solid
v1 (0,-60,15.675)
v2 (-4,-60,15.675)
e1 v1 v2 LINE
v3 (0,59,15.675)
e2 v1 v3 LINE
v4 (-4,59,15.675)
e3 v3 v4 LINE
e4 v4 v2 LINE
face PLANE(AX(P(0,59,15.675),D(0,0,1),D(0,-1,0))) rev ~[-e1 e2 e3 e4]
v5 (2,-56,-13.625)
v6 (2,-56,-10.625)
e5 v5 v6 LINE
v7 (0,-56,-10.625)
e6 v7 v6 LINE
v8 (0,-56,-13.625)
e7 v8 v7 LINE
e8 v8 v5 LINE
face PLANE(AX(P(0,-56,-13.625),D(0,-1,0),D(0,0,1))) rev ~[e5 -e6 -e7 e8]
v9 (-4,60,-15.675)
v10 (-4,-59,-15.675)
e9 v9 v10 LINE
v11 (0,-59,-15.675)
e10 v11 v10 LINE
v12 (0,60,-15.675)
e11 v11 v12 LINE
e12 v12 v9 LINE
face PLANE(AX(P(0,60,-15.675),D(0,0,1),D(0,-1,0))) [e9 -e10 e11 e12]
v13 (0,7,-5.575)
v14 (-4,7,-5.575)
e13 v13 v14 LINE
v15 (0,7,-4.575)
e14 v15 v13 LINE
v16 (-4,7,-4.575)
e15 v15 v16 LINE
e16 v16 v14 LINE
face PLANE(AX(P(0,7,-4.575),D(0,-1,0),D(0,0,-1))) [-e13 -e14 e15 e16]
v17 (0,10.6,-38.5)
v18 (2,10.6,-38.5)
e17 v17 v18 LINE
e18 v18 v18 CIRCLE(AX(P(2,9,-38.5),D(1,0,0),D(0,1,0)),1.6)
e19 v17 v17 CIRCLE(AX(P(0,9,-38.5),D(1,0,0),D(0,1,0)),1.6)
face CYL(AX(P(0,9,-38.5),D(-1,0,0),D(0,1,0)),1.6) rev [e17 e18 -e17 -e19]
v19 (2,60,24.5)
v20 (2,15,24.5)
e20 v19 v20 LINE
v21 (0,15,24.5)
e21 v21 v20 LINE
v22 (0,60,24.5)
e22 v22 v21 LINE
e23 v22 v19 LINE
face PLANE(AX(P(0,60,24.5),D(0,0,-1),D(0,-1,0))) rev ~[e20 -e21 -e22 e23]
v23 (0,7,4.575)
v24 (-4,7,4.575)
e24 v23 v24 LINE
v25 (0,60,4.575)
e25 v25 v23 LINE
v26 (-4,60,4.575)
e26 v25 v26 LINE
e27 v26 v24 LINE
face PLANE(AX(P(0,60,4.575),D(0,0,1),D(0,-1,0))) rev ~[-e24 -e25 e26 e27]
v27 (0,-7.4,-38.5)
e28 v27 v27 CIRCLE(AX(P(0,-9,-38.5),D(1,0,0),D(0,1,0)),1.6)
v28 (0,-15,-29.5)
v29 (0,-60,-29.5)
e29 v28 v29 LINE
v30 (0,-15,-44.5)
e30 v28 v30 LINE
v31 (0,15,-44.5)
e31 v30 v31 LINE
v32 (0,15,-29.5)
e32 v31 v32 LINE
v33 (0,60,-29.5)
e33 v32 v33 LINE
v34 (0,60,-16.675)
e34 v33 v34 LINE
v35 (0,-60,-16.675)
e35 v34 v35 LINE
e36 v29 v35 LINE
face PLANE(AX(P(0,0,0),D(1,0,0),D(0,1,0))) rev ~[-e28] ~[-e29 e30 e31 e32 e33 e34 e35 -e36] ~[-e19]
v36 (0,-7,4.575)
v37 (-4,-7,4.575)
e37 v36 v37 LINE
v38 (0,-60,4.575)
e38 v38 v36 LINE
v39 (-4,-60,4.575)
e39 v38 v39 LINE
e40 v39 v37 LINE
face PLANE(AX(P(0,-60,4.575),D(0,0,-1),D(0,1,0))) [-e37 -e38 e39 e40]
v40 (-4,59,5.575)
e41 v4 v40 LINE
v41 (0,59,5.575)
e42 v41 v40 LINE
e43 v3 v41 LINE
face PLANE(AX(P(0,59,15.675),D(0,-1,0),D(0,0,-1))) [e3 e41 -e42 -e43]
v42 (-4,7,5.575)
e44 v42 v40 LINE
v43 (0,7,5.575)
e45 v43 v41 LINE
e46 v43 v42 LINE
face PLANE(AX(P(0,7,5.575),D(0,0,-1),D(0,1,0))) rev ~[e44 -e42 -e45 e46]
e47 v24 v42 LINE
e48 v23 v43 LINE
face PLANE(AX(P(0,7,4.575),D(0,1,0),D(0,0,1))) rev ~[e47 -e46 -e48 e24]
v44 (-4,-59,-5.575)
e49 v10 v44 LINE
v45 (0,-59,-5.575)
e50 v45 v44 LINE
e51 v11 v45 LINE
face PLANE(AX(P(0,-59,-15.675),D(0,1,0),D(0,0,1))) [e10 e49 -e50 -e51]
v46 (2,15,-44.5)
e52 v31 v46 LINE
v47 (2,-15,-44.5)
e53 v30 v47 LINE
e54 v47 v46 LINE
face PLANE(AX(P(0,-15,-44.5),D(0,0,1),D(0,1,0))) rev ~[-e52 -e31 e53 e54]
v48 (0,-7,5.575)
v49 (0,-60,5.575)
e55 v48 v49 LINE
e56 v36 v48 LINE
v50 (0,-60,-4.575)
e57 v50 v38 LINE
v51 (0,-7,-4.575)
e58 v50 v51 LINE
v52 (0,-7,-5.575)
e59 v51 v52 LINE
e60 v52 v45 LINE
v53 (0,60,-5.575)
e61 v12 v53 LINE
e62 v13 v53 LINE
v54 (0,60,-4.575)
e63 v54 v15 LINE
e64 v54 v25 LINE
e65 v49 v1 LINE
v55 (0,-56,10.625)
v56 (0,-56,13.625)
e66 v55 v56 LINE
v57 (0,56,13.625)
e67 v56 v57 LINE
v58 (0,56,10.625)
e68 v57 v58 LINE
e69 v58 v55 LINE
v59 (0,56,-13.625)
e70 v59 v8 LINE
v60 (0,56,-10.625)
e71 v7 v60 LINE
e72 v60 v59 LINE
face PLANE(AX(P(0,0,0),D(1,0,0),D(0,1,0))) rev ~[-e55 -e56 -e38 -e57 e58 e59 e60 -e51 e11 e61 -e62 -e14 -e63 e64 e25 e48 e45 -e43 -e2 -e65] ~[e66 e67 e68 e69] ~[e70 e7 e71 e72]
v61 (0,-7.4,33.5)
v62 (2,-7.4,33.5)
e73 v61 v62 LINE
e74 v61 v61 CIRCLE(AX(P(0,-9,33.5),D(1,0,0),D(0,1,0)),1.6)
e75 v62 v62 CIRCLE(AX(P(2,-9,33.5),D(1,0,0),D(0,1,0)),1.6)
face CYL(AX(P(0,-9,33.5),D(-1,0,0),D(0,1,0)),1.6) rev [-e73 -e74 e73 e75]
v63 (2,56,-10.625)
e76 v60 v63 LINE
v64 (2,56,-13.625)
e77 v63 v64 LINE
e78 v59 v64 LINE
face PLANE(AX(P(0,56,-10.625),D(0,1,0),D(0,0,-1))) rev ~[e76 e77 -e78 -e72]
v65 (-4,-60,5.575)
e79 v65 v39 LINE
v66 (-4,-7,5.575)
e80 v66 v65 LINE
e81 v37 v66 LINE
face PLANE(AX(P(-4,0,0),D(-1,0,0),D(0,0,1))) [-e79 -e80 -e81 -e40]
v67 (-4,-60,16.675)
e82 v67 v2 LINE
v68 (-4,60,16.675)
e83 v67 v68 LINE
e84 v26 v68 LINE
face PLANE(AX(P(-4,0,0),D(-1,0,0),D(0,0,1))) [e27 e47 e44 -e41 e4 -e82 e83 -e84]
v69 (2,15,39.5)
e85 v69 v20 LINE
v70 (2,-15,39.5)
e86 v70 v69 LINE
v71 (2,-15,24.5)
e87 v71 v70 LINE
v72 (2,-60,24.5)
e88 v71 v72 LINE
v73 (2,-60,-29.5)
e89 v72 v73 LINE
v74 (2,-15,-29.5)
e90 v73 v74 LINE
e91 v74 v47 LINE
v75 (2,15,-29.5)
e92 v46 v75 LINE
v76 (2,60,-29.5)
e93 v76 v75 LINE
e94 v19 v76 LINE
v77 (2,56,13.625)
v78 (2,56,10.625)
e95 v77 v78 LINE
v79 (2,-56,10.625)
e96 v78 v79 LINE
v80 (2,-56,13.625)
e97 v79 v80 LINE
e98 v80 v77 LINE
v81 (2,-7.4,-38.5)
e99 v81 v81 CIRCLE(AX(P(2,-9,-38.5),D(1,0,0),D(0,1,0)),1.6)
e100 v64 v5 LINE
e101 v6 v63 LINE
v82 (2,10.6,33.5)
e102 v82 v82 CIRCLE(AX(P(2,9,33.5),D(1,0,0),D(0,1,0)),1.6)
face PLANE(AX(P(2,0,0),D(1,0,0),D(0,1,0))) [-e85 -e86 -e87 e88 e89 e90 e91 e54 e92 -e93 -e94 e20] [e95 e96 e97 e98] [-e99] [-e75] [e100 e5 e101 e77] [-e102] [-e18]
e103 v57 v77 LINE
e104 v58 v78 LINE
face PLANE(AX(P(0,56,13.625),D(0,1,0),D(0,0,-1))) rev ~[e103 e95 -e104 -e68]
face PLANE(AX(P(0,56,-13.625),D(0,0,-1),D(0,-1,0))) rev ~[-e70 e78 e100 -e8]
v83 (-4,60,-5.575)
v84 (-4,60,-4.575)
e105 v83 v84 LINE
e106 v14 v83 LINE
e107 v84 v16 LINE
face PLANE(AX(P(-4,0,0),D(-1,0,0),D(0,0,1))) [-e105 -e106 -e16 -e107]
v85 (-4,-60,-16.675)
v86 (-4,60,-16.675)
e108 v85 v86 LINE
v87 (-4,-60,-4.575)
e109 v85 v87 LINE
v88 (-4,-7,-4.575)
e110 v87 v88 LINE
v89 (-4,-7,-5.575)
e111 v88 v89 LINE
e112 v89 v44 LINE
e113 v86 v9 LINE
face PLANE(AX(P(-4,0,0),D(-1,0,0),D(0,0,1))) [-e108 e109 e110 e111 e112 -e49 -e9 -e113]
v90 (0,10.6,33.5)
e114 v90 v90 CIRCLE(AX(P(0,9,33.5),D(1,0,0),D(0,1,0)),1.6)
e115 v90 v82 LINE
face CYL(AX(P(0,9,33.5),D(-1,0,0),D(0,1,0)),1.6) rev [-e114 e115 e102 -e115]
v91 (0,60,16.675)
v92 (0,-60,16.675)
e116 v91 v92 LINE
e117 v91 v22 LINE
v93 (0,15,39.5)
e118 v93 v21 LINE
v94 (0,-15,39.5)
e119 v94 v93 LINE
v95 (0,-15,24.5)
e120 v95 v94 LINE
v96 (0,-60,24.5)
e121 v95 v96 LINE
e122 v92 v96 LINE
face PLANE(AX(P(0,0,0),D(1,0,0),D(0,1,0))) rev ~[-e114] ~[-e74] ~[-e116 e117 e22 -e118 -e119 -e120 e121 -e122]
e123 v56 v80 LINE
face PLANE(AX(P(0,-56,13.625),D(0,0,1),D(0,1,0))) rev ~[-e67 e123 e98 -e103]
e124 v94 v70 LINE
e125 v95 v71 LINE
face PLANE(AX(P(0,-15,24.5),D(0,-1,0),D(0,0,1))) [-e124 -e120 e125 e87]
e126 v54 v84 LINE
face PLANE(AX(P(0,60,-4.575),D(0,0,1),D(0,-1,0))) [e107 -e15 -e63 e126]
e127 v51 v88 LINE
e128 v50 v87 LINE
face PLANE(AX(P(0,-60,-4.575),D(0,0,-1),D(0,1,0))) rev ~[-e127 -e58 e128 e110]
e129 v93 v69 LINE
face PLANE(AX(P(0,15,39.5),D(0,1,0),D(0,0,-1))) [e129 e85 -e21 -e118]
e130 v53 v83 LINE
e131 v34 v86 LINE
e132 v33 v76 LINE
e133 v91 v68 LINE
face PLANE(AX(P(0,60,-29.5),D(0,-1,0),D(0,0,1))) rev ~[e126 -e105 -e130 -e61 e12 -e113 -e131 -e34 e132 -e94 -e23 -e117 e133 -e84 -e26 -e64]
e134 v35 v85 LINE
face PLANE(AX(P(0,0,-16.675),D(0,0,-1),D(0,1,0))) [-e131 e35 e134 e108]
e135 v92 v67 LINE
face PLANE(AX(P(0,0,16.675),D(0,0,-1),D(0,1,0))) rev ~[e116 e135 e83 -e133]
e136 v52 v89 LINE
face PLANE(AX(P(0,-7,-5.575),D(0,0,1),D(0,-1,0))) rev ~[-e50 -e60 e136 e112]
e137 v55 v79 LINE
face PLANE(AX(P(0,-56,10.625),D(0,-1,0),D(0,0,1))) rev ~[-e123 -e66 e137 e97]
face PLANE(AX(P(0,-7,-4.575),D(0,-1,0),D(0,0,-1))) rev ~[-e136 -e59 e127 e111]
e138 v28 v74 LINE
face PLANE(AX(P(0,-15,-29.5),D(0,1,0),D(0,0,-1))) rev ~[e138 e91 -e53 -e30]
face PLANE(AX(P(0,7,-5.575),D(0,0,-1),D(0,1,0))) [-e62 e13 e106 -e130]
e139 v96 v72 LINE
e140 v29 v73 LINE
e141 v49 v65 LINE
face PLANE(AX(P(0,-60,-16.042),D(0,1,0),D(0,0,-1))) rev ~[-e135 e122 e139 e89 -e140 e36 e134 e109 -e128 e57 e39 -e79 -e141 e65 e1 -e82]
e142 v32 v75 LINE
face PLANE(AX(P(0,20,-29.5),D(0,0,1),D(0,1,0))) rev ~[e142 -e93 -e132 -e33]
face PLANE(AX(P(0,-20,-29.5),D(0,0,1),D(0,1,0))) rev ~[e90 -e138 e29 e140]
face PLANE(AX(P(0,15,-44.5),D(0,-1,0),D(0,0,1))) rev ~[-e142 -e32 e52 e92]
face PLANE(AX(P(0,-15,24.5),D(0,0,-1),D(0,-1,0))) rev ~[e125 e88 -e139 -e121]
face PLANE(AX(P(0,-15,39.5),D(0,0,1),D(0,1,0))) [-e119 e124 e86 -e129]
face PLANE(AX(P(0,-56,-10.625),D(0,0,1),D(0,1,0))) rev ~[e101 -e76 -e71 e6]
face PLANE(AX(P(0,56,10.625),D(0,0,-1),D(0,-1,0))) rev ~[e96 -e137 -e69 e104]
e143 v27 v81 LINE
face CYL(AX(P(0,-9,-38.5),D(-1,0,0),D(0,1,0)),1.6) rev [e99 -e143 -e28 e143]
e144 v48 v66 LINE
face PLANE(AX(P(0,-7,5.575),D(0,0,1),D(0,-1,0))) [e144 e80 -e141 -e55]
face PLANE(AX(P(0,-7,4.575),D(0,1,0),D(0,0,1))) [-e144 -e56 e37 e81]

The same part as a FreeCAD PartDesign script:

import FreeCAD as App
import Part
import Sketcher

V = App.Vector

doc = App.newDocument("Part")
body = doc.addObject("PartDesign::Body", "Body")

sketch1 = body.newObject("Sketcher::SketchObject", "Sketch")
sketch1.AttachmentSupport = (doc.getObject("YZ_Plane"), [""])
sketch1.MapMode = "FlatFace"
sketch1.addGeometry(Part.LineSegment(V(60, -29.5, 0), V(60, 24.5, 0)), False)
sketch1.addGeometry(Part.LineSegment(V(60, 24.5, 0), V(15, 24.5, 0)), False)
sketch1.addGeometry(Part.LineSegment(V(15, 24.5, 0), V(15, 39.5, 0)), False)
sketch1.addGeometry(Part.LineSegment(V(15, 39.5, 0), V(-15, 39.5, 0)), False)
sketch1.addGeometry(Part.LineSegment(V(-15, 39.5, 0), V(-15, 24.5, 0)), False)
sketch1.addGeometry(Part.LineSegment(V(-15, 24.5, 0), V(-60, 24.5, 0)), False)
sketch1.addGeometry(Part.LineSegment(V(-60, 24.5, 0), V(-60, -29.5, 0)), False)
sketch1.addGeometry(Part.LineSegment(V(-60, -29.5, 0), V(-15, -29.5, 0)), False)
sketch1.addGeometry(Part.LineSegment(V(-15, -29.5, 0), V(-15, -44.5, 0)), False)
sketch1.addGeometry(Part.LineSegment(V(-15, -44.5, 0), V(15, -44.5, 0)), False)
sketch1.addGeometry(Part.LineSegment(V(15, -44.5, 0), V(15, -29.5, 0)), False)
sketch1.addGeometry(Part.LineSegment(V(15, -29.5, 0), V(60, -29.5, 0)), False)
sketch1.addGeometry(Part.Circle(V(9, -38.5, 0), V(0, 0, 1), 1.6), False)
sketch1.addGeometry(Part.Circle(V(-9, -38.5, 0), V(0, 0, 1), 1.6), False)
sketch1.addGeometry(Part.LineSegment(V(-56, -10.625, 0), V(56, -10.625, 0)), False)
sketch1.addGeometry(Part.LineSegment(V(56, -10.625, 0), V(56, -13.625, 0)), False)
sketch1.addGeometry(Part.LineSegment(V(56, -13.625, 0), V(-56, -13.625, 0)), False)
sketch1.addGeometry(Part.LineSegment(V(-56, -13.625, 0), V(-56, -10.625, 0)), False)
sketch1.addGeometry(Part.LineSegment(V(-56, 13.625, 0), V(56, 13.625, 0)), False)
sketch1.addGeometry(Part.LineSegment(V(56, 13.625, 0), V(56, 10.625, 0)), False)
sketch1.addGeometry(Part.LineSegment(V(56, 10.625, 0), V(-56, 10.625, 0)), False)
sketch1.addGeometry(Part.LineSegment(V(-56, 10.625, 0), V(-56, 13.625, 0)), False)
sketch1.addGeometry(Part.Circle(V(9, 33.5, 0), V(0, 0, 1), 1.6), False)
sketch1.addGeometry(Part.Circle(V(-9, 33.5, 0), V(0, 0, 1), 1.6), False)
sketch1.addConstraint(Sketcher.Constraint("Coincident", 0, 2, 1, 1))
sketch1.addConstraint(Sketcher.Constraint("Coincident", 1, 2, 2, 1))
sketch1.addConstraint(Sketcher.Constraint("Coincident", 2, 2, 3, 1))
sketch1.addConstraint(Sketcher.Constraint("Coincident", 3, 2, 4, 1))
sketch1.addConstraint(Sketcher.Constraint("Coincident", 4, 2, 5, 1))
sketch1.addConstraint(Sketcher.Constraint("Coincident", 5, 2, 6, 1))
sketch1.addConstraint(Sketcher.Constraint("Coincident", 6, 2, 7, 1))
sketch1.addConstraint(Sketcher.Constraint("Coincident", 7, 2, 8, 1))
sketch1.addConstraint(Sketcher.Constraint("Coincident", 8, 2, 9, 1))
sketch1.addConstraint(Sketcher.Constraint("Coincident", 9, 2, 10, 1))
sketch1.addConstraint(Sketcher.Constraint("Coincident", 10, 2, 11, 1))
sketch1.addConstraint(Sketcher.Constraint("Coincident", 11, 2, 0, 1))
sketch1.addConstraint(Sketcher.Constraint("Coincident", 14, 2, 15, 1))
sketch1.addConstraint(Sketcher.Constraint("Coincident", 15, 2, 16, 1))
sketch1.addConstraint(Sketcher.Constraint("Coincident", 16, 2, 17, 1))
sketch1.addConstraint(Sketcher.Constraint("Coincident", 17, 2, 14, 1))
sketch1.addConstraint(Sketcher.Constraint("Coincident", 18, 2, 19, 1))
sketch1.addConstraint(Sketcher.Constraint("Coincident", 19, 2, 20, 1))
sketch1.addConstraint(Sketcher.Constraint("Coincident", 20, 2, 21, 1))
sketch1.addConstraint(Sketcher.Constraint("Coincident", 21, 2, 18, 1))
sketch1.addConstraint(Sketcher.Constraint("Vertical", 0))
sketch1.addConstraint(Sketcher.Constraint("Horizontal", 1))
sketch1.addConstraint(Sketcher.Constraint("Vertical", 2))
sketch1.addConstraint(Sketcher.Constraint("Horizontal", 3))
sketch1.addConstraint(Sketcher.Constraint("Vertical", 4))
sketch1.addConstraint(Sketcher.Constraint("Horizontal", 5))
sketch1.addConstraint(Sketcher.Constraint("Vertical", 6))
sketch1.addConstraint(Sketcher.Constraint("Horizontal", 7))
sketch1.addConstraint(Sketcher.Constraint("Vertical", 8))
sketch1.addConstraint(Sketcher.Constraint("Horizontal", 9))
sketch1.addConstraint(Sketcher.Constraint("Vertical", 10))
sketch1.addConstraint(Sketcher.Constraint("Horizontal", 11))
sketch1.addConstraint(Sketcher.Constraint("Horizontal", 14))
sketch1.addConstraint(Sketcher.Constraint("Vertical", 15))
sketch1.addConstraint(Sketcher.Constraint("Horizontal", 16))
sketch1.addConstraint(Sketcher.Constraint("Vertical", 17))
sketch1.addConstraint(Sketcher.Constraint("Horizontal", 18))
sketch1.addConstraint(Sketcher.Constraint("Vertical", 19))
sketch1.addConstraint(Sketcher.Constraint("Horizontal", 20))
sketch1.addConstraint(Sketcher.Constraint("Vertical", 21))
sketch1.addConstraint(Sketcher.Constraint("Equal", 12, 13))
sketch1.addConstraint(Sketcher.Constraint("Equal", 13, 22))
sketch1.addConstraint(Sketcher.Constraint("Equal", 22, 23))
sketch1.addConstraint(Sketcher.Constraint("Symmetric", 16, 2, 18, 2, -1, 1))
sketch1.addConstraint(Sketcher.Constraint("Symmetric", 14, 2, 20, 2, -1, 1))
sketch1.addConstraint(Sketcher.Constraint("Symmetric", 12, 3, 13, 3, -2))
sketch1.addConstraint(Sketcher.Constraint("Symmetric", 22, 3, 23, 3, -2))
sketch1.addConstraint(Sketcher.Constraint("Symmetric", 1, 2, 4, 2, -2))
sketch1.addConstraint(Sketcher.Constraint("Symmetric", 7, 2, 10, 2, -2))
sketch1.addConstraint(Sketcher.Constraint("Vertical", 12, 3, 22, 3))
sketch1.addConstraint(Sketcher.Constraint("Vertical", 4, 2, 7, 2))
sketch1.addConstraint(Sketcher.Constraint("Vertical", 15, 2, 18, 2))
sketch1.addConstraint(Sketcher.Constraint("Equal", 1, 5))
sketch1.addConstraint(Sketcher.Constraint("Equal", 4, 8))
sketch1.addConstraint(Sketcher.Constraint("Diameter", 12, 3.2))
sketch1.addConstraint(Sketcher.Constraint("DistanceX", 3, 2, 3, 1, 30.0))
sketch1.addConstraint(Sketcher.Constraint("DistanceY", 0, 1, 0, 2, 54.0))
sketch1.addConstraint(Sketcher.Constraint("DistanceY", 2, 1, 2, 2, 15.0))
sketch1.addConstraint(Sketcher.Constraint("DistanceY", 15, 2, 15, 1, 3.0))
sketch1.addConstraint(Sketcher.Constraint("DistanceX", -1, 1, 12, 3, 9.0))
sketch1.addConstraint(Sketcher.Constraint("DistanceY", 12, 3, 22, 3, 72.0))
sketch1.addConstraint(Sketcher.Constraint("DistanceY", 0, 2, 22, 3, 9.0))
sketch1.addConstraint(Sketcher.Constraint("DistanceX", 14, 2, 11, 2, 4.0))
sketch1.addConstraint(Sketcher.Constraint("DistanceY", 6, 2, -1, 1, 29.5))
sketch1.addConstraint(Sketcher.Constraint("DistanceX", 1, 2, 1, 1, 45.0))
sketch1.addConstraint(Sketcher.Constraint("DistanceY", 14, 2, 18, 2, 24.25))
pad1 = body.newObject("PartDesign::Pad", "Pad")
pad1.Profile = sketch1
pad1.Length = 2

sketch2 = body.newObject("Sketcher::SketchObject", "Sketch001")
sketch2.AttachmentSupport = (doc.getObject("YZ_Plane"), [""])
sketch2.MapMode = "FlatFace"
sketch2.addGeometry(Part.LineSegment(V(60, 4.575, 0), V(7, 4.575, 0)), False)
sketch2.addGeometry(Part.LineSegment(V(7, 4.575, 0), V(7, 5.575, 0)), False)
sketch2.addGeometry(Part.LineSegment(V(7, 5.575, 0), V(59, 5.575, 0)), False)
sketch2.addGeometry(Part.LineSegment(V(59, 5.575, 0), V(59, 15.675, 0)), False)
sketch2.addGeometry(Part.LineSegment(V(59, 15.675, 0), V(-60, 15.675, 0)), False)
sketch2.addGeometry(Part.LineSegment(V(-60, 15.675, 0), V(-60, 16.675, 0)), False)
sketch2.addGeometry(Part.LineSegment(V(-60, 16.675, 0), V(60, 16.675, 0)), False)
sketch2.addGeometry(Part.LineSegment(V(60, 16.675, 0), V(60, 4.575, 0)), False)
sketch2.addGeometry(Part.LineSegment(V(60, -4.575, 0), V(60, -5.575, 0)), False)
sketch2.addGeometry(Part.LineSegment(V(60, -5.575, 0), V(7, -5.575, 0)), False)
sketch2.addGeometry(Part.LineSegment(V(7, -5.575, 0), V(7, -4.575, 0)), False)
sketch2.addGeometry(Part.LineSegment(V(7, -4.575, 0), V(60, -4.575, 0)), False)
sketch2.addGeometry(Part.LineSegment(V(60, -15.675, 0), V(60, -16.675, 0)), False)
sketch2.addGeometry(Part.LineSegment(V(60, -16.675, 0), V(-60, -16.675, 0)), False)
sketch2.addGeometry(Part.LineSegment(V(-60, -16.675, 0), V(-60, -4.575, 0)), False)
sketch2.addGeometry(Part.LineSegment(V(-60, -4.575, 0), V(-7, -4.575, 0)), False)
sketch2.addGeometry(Part.LineSegment(V(-7, -4.575, 0), V(-7, -5.575, 0)), False)
sketch2.addGeometry(Part.LineSegment(V(-7, -5.575, 0), V(-59, -5.575, 0)), False)
sketch2.addGeometry(Part.LineSegment(V(-59, -5.575, 0), V(-59, -15.675, 0)), False)
sketch2.addGeometry(Part.LineSegment(V(-59, -15.675, 0), V(60, -15.675, 0)), False)
sketch2.addGeometry(Part.LineSegment(V(-60, 4.575, 0), V(-60, 5.575, 0)), False)
sketch2.addGeometry(Part.LineSegment(V(-60, 5.575, 0), V(-7, 5.575, 0)), False)
sketch2.addGeometry(Part.LineSegment(V(-7, 5.575, 0), V(-7, 4.575, 0)), False)
sketch2.addGeometry(Part.LineSegment(V(-7, 4.575, 0), V(-60, 4.575, 0)), False)
sketch2.addConstraint(Sketcher.Constraint("Coincident", 0, 2, 1, 1))
sketch2.addConstraint(Sketcher.Constraint("Coincident", 1, 2, 2, 1))
sketch2.addConstraint(Sketcher.Constraint("Coincident", 2, 2, 3, 1))
sketch2.addConstraint(Sketcher.Constraint("Coincident", 3, 2, 4, 1))
sketch2.addConstraint(Sketcher.Constraint("Coincident", 4, 2, 5, 1))
sketch2.addConstraint(Sketcher.Constraint("Coincident", 5, 2, 6, 1))
sketch2.addConstraint(Sketcher.Constraint("Coincident", 6, 2, 7, 1))
sketch2.addConstraint(Sketcher.Constraint("Coincident", 7, 2, 0, 1))
sketch2.addConstraint(Sketcher.Constraint("Coincident", 8, 2, 9, 1))
sketch2.addConstraint(Sketcher.Constraint("Coincident", 9, 2, 10, 1))
sketch2.addConstraint(Sketcher.Constraint("Coincident", 10, 2, 11, 1))
sketch2.addConstraint(Sketcher.Constraint("Coincident", 11, 2, 8, 1))
sketch2.addConstraint(Sketcher.Constraint("Coincident", 12, 2, 13, 1))
sketch2.addConstraint(Sketcher.Constraint("Coincident", 13, 2, 14, 1))
sketch2.addConstraint(Sketcher.Constraint("Coincident", 14, 2, 15, 1))
sketch2.addConstraint(Sketcher.Constraint("Coincident", 15, 2, 16, 1))
sketch2.addConstraint(Sketcher.Constraint("Coincident", 16, 2, 17, 1))
sketch2.addConstraint(Sketcher.Constraint("Coincident", 17, 2, 18, 1))
sketch2.addConstraint(Sketcher.Constraint("Coincident", 18, 2, 19, 1))
sketch2.addConstraint(Sketcher.Constraint("Coincident", 19, 2, 12, 1))
sketch2.addConstraint(Sketcher.Constraint("Coincident", 20, 2, 21, 1))
sketch2.addConstraint(Sketcher.Constraint("Coincident", 21, 2, 22, 1))
sketch2.addConstraint(Sketcher.Constraint("Coincident", 22, 2, 23, 1))
sketch2.addConstraint(Sketcher.Constraint("Coincident", 23, 2, 20, 1))
sketch2.addConstraint(Sketcher.Constraint("Horizontal", 0))
sketch2.addConstraint(Sketcher.Constraint("Vertical", 1))
sketch2.addConstraint(Sketcher.Constraint("Horizontal", 2))
sketch2.addConstraint(Sketcher.Constraint("Vertical", 3))
sketch2.addConstraint(Sketcher.Constraint("Horizontal", 4))
sketch2.addConstraint(Sketcher.Constraint("Vertical", 5))
sketch2.addConstraint(Sketcher.Constraint("Horizontal", 6))
sketch2.addConstraint(Sketcher.Constraint("Vertical", 7))
sketch2.addConstraint(Sketcher.Constraint("Vertical", 8))
sketch2.addConstraint(Sketcher.Constraint("Horizontal", 9))
sketch2.addConstraint(Sketcher.Constraint("Vertical", 10))
sketch2.addConstraint(Sketcher.Constraint("Horizontal", 11))
sketch2.addConstraint(Sketcher.Constraint("Vertical", 12))
sketch2.addConstraint(Sketcher.Constraint("Horizontal", 13))
sketch2.addConstraint(Sketcher.Constraint("Vertical", 14))
sketch2.addConstraint(Sketcher.Constraint("Horizontal", 15))
sketch2.addConstraint(Sketcher.Constraint("Vertical", 16))
sketch2.addConstraint(Sketcher.Constraint("Horizontal", 17))
sketch2.addConstraint(Sketcher.Constraint("Vertical", 18))
sketch2.addConstraint(Sketcher.Constraint("Horizontal", 19))
sketch2.addConstraint(Sketcher.Constraint("Vertical", 20))
sketch2.addConstraint(Sketcher.Constraint("Horizontal", 21))
sketch2.addConstraint(Sketcher.Constraint("Vertical", 22))
sketch2.addConstraint(Sketcher.Constraint("Horizontal", 23))
sketch2.addConstraint(Sketcher.Constraint("Symmetric", 5, 2, 12, 2, -1, 1))
sketch2.addConstraint(Sketcher.Constraint("Symmetric", 7, 2, 14, 2, -1, 1))
sketch2.addConstraint(Sketcher.Constraint("Symmetric", 1, 2, 16, 2, -1, 1))
sketch2.addConstraint(Sketcher.Constraint("Symmetric", 3, 2, 18, 2, -1, 1))
sketch2.addConstraint(Sketcher.Constraint("Symmetric", 8, 2, 20, 2, -1, 1))
sketch2.addConstraint(Sketcher.Constraint("Symmetric", 10, 2, 22, 2, -1, 1))
sketch2.addConstraint(Sketcher.Constraint("Symmetric", 11, 2, 14, 2, -2))
sketch2.addConstraint(Sketcher.Constraint("Symmetric", 9, 2, 16, 2, -2))
sketch2.addConstraint(Sketcher.Constraint("Vertical", 11, 2, 12, 2))
sketch2.addConstraint(Sketcher.Constraint("Equal", 1, 5))
sketch2.addConstraint(Sketcher.Constraint("DistanceY", 1, 1, 1, 2, 1.0))
sketch2.addConstraint(Sketcher.Constraint("DistanceY", 3, 1, 3, 2, 10.1))
sketch2.addConstraint(Sketcher.Constraint("DistanceX", -1, 1, 0, 2, 7.0))
sketch2.addConstraint(Sketcher.Constraint("DistanceX", 4, 2, -1, 1, 60.0))
sketch2.addConstraint(Sketcher.Constraint("DistanceX", 3, 2, 6, 2, 1.0))
sketch2.addConstraint(Sketcher.Constraint("DistanceY", -1, 1, 1, 2, 5.575))
pad2 = body.newObject("PartDesign::Pad", "Pad001")
pad2.Profile = sketch2
pad2.Length = 4
pad2.Reversed = True

doc.recompute()
